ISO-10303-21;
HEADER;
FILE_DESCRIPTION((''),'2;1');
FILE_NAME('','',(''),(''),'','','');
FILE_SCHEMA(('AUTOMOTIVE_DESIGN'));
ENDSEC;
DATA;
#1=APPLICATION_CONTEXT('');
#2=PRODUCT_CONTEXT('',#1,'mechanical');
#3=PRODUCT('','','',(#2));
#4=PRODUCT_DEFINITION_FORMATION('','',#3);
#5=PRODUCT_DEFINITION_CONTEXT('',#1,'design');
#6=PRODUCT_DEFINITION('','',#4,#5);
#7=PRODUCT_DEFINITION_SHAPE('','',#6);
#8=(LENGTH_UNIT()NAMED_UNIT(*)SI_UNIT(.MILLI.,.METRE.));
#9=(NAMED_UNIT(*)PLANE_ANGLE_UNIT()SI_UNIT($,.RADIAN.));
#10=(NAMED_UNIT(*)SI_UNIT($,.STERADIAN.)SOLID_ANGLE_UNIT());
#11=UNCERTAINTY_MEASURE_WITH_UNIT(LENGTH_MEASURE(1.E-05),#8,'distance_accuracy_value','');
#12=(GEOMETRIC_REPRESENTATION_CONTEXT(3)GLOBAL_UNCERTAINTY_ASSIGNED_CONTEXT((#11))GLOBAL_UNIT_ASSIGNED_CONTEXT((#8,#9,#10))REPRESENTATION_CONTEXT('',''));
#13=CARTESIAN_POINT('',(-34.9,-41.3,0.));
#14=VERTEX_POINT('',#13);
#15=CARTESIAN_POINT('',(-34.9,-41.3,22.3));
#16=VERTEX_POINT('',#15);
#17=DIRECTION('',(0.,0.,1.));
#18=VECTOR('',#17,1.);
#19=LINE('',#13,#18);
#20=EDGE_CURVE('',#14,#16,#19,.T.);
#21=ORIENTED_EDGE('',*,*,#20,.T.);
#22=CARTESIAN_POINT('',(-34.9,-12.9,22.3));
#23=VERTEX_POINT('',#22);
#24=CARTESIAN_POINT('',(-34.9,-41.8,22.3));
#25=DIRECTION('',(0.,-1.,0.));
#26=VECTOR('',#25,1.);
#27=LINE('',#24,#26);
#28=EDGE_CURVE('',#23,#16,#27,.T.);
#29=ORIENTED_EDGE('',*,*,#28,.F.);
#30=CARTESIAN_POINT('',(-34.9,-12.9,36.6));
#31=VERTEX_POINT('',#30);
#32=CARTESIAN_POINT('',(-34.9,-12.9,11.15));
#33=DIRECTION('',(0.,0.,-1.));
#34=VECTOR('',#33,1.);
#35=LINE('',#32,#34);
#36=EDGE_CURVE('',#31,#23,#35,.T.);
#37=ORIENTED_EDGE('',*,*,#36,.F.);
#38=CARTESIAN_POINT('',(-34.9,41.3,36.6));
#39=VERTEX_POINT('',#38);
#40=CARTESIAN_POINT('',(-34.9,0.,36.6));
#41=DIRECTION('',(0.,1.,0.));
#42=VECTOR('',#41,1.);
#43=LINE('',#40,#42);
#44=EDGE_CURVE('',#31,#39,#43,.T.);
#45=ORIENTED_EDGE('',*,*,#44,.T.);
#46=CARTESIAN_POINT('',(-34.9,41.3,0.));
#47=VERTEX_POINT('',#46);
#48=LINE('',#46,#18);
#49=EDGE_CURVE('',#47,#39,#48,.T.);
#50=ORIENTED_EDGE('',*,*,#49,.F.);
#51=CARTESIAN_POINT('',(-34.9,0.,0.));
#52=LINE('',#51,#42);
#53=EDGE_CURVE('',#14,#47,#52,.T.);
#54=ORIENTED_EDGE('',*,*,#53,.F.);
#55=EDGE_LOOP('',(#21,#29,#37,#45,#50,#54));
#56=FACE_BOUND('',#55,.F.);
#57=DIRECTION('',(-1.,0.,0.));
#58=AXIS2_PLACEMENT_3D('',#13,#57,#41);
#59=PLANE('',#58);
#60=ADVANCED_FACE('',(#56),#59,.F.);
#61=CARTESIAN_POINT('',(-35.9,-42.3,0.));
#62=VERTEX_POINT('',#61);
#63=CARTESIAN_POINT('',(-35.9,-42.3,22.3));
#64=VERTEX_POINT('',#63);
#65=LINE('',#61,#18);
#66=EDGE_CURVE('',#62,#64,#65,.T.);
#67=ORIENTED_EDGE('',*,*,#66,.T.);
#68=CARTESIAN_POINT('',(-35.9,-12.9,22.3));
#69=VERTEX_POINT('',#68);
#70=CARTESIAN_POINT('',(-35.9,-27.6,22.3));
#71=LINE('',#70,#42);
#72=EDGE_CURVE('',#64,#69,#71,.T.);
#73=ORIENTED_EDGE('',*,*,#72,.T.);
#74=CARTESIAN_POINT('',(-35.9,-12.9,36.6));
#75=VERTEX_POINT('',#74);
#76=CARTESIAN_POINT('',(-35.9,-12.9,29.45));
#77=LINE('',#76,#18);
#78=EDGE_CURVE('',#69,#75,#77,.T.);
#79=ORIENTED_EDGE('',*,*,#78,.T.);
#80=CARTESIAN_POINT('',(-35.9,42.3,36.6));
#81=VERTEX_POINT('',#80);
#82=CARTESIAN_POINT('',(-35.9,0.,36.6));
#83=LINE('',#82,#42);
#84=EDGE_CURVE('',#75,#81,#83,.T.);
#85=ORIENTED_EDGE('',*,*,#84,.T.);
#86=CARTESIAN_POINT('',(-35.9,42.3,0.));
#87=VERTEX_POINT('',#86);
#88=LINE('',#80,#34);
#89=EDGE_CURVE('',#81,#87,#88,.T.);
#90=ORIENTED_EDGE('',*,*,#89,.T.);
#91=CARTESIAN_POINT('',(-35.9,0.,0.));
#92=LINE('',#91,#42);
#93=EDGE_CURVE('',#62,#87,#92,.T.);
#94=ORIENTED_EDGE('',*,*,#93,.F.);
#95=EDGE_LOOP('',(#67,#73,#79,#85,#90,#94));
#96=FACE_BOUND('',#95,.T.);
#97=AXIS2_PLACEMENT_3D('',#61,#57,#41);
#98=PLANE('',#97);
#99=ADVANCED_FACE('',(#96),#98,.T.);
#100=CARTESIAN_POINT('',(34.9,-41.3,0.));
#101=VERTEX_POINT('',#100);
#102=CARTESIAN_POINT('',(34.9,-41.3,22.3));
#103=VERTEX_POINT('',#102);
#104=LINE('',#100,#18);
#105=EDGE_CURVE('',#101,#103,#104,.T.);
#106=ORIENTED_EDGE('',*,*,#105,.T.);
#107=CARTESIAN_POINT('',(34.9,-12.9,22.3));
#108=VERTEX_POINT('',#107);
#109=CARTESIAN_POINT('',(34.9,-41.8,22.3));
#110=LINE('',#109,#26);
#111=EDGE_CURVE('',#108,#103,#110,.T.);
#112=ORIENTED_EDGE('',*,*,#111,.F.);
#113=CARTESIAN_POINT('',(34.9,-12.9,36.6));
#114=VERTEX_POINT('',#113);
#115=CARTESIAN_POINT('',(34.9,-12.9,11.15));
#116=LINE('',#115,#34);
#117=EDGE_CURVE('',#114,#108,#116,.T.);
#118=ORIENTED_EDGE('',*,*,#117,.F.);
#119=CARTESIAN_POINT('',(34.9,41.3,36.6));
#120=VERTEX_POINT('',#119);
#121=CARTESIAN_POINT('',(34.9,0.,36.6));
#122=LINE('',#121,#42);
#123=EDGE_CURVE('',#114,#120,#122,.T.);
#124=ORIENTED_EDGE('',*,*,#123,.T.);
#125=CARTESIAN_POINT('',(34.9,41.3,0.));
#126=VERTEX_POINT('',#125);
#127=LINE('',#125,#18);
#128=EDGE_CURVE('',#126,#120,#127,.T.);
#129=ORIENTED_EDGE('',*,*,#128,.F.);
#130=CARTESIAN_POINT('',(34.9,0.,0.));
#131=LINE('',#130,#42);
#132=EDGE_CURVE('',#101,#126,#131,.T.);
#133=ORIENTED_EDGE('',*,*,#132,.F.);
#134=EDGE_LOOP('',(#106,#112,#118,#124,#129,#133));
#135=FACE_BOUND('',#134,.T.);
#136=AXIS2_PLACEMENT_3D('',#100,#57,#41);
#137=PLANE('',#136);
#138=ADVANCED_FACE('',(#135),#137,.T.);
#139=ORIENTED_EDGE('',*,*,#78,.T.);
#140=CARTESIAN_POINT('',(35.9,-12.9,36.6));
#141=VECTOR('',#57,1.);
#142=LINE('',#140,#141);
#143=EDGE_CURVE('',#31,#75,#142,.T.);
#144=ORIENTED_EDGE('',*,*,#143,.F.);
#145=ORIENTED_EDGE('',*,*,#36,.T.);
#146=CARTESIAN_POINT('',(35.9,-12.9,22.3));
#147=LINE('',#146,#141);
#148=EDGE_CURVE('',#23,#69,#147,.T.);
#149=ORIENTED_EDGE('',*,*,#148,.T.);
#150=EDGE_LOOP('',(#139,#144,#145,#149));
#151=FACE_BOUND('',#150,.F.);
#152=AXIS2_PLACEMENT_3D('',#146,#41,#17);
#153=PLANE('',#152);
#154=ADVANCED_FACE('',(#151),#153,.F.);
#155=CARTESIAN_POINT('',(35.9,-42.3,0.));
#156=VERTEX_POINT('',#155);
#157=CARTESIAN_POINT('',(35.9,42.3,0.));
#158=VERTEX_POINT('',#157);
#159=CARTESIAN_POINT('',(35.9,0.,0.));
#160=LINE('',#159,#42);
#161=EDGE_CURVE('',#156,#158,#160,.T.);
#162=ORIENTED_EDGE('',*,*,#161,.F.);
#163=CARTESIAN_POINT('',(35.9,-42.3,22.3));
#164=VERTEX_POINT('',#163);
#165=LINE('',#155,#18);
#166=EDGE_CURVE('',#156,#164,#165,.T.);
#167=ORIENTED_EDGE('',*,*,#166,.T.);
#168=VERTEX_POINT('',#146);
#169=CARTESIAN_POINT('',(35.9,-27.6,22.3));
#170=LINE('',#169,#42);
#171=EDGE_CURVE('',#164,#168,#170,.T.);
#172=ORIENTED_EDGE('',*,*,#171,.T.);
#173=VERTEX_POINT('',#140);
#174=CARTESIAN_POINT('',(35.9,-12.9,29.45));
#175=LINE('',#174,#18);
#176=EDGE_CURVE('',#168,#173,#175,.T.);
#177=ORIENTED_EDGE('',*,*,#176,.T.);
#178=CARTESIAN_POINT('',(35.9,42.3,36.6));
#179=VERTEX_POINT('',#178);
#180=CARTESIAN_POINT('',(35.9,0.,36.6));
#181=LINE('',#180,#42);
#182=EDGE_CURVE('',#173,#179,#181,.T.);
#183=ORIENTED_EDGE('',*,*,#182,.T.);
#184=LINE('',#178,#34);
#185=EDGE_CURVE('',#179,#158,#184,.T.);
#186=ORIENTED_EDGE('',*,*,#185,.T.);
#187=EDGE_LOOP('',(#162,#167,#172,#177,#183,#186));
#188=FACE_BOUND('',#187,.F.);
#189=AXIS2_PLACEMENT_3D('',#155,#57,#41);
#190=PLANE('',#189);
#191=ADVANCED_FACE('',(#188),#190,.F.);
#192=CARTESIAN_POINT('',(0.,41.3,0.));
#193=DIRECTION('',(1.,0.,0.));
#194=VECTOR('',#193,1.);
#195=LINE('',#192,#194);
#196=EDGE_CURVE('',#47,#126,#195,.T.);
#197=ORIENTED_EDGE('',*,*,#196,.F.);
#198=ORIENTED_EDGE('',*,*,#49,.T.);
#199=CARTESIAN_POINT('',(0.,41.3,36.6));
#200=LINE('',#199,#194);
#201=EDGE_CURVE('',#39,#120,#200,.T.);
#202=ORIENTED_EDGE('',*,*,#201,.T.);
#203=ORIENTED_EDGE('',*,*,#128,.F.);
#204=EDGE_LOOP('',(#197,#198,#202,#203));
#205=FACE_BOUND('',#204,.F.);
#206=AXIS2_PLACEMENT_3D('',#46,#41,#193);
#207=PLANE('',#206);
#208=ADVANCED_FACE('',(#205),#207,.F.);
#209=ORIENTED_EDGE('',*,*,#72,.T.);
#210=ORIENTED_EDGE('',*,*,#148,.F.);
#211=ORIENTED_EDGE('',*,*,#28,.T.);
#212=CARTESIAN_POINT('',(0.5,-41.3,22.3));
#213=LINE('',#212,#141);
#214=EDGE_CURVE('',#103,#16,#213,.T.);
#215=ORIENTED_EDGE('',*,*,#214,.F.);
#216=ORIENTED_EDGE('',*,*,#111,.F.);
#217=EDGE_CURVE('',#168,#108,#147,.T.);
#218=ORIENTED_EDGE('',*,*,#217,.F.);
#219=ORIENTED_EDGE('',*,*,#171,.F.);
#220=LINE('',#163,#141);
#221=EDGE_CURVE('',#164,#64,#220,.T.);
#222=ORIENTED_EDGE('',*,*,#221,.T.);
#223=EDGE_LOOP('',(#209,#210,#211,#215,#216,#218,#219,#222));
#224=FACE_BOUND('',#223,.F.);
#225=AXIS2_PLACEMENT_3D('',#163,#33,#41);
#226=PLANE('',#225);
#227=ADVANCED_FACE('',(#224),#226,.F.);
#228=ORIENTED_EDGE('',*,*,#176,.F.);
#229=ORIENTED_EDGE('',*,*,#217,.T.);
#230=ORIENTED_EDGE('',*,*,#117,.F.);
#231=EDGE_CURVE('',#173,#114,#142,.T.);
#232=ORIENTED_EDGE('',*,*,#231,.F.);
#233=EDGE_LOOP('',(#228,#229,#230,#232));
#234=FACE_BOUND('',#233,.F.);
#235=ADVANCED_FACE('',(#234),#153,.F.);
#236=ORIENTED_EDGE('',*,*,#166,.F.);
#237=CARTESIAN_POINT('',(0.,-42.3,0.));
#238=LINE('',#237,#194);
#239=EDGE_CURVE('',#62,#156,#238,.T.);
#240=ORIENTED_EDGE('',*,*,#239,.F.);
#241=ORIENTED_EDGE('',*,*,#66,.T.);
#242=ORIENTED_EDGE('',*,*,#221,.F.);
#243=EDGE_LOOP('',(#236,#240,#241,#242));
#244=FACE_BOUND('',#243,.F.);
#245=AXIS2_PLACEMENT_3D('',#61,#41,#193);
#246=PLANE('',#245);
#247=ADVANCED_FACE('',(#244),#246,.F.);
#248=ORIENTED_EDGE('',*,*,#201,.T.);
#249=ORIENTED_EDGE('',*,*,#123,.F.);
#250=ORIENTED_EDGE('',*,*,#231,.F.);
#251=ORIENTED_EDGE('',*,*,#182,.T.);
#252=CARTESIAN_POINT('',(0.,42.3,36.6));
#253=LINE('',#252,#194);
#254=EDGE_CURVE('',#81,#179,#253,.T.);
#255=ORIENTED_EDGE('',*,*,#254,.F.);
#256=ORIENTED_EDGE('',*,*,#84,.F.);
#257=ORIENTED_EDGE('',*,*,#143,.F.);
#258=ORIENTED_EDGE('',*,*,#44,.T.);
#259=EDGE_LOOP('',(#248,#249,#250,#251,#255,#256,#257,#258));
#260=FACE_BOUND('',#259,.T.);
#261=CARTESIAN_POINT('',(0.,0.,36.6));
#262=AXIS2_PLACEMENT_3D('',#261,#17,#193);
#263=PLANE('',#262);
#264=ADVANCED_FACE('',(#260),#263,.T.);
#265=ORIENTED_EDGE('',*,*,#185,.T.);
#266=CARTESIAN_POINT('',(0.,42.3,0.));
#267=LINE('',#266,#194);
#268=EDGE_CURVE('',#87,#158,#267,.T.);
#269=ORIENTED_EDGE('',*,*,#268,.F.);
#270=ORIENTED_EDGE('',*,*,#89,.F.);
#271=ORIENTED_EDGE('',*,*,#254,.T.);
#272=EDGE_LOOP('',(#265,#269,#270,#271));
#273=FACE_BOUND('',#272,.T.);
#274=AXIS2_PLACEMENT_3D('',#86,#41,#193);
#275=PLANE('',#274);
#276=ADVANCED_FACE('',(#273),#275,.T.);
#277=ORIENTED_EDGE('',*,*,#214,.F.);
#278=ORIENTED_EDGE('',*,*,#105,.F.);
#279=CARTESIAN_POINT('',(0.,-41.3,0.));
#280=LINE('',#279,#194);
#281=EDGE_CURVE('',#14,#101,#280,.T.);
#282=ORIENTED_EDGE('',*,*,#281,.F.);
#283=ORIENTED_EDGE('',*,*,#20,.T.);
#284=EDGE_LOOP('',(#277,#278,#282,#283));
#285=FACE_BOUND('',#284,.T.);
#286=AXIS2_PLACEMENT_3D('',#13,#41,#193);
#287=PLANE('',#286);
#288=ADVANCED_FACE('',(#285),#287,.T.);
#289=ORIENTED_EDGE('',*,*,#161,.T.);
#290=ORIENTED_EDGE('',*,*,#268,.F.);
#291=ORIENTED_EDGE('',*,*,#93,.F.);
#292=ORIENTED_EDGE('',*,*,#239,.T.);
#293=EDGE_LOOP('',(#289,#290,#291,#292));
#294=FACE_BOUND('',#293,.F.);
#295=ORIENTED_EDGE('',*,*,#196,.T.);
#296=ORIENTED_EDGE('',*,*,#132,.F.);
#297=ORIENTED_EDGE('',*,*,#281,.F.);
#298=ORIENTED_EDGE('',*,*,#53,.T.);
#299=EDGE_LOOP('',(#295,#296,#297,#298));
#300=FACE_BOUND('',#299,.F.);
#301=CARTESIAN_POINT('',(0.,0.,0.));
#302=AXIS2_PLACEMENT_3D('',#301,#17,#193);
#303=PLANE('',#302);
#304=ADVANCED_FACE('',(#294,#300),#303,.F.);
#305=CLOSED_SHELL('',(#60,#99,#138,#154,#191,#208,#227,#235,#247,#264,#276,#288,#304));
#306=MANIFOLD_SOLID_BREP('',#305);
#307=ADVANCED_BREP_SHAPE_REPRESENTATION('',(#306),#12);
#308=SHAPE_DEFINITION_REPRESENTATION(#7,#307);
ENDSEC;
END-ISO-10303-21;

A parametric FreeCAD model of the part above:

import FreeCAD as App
import Part
import Sketcher

V = App.Vector


def add_polygon(sketch, points):
    """Adds a closed chain of lines whose ends are joined by coincident constraints."""
    first, n = sketch.GeometryCount, len(points)
    for a, b in zip(points, points[1:] + points[:1]):
        sketch.addGeometry(Part.LineSegment(App.Vector(*a, 0), App.Vector(*b, 0)), False)
    for i in range(n):
        sketch.addConstraint(Sketcher.Constraint("Coincident", first + i, 2, first + (i + 1) % n, 1))

doc = App.newDocument("Part")
body = doc.addObject("PartDesign::Body", "Body")

sketch1 = body.newObject("Sketcher::SketchObject", "Sketch")
sketch1.AttachmentSupport = (doc.getObject("XY_Plane"), [""])
sketch1.MapMode = "FlatFace"
add_polygon(sketch1, [(-36, 42), (-36, -42), (36, -42), (36, 42)])
sketch1.addConstraint([
    Sketcher.Constraint("Vertical", 0),
    Sketcher.Constraint("Horizontal", 1),
    Sketcher.Constraint("Vertical", 2),
    Sketcher.Constraint("Horizontal", 3),
    Sketcher.Constraint("Symmetric", 0, 2, 2, 2, -1, 1),
    Sketcher.Constraint("DistanceX", 1, 1, 1, 2, 71.8),
    Sketcher.Constraint("DistanceY", 0, 2, 0, 1, 84.6),
])
pad1 = body.newObject("PartDesign::Pad", "Pad")
pad1.Profile = sketch1
pad1.Length = 36.6

sketch2 = body.newObject("Sketcher::SketchObject", "Sketch001")
sketch2.AttachmentSupport = (doc.getObject("XY_Plane"), [""])
sketch2.MapMode = "FlatFace"
add_polygon(sketch2, [(-36, 42), (-36, -42), (36, -42), (36, 42)])
sketch2.addConstraint([
    Sketcher.Constraint("Vertical", 0),
    Sketcher.Constraint("Horizontal", 1),
    Sketcher.Constraint("Vertical", 2),
    Sketcher.Constraint("Horizontal", 3),
    Sketcher.Constraint("Symmetric", 0, 2, 2, 2, -1, 1),
    Sketcher.Constraint("DistanceX", 1, 1, 1, 2, 71.8),
    Sketcher.Constraint("DistanceY", 0, 2, 0, 1, 84.6),
])
pad2 = body.newObject("PartDesign::Pad", "Pad001")
pad2.Profile = sketch2
pad2.Length = 2

sketch3 = body.newObject("Sketcher::SketchObject", "Sketch002")
sketch3.AttachmentSupport = (doc.getObject("XY_Plane"), [""])
sketch3.MapMode = "FlatFace"
add_polygon(sketch3, [(-35, 41), (-35, -41), (35, -41), (35, 41)])
sketch3.addConstraint([
    Sketcher.Constraint("Vertical", 0),
    Sketcher.Constraint("Horizontal", 1),
    Sketcher.Constraint("Vertical", 2),
    Sketcher.Constraint("Horizontal", 3),
    Sketcher.Constraint("Symmetric", 0, 2, 2, 2, -1, 1),
    Sketcher.Constraint("DistanceX", 1, 1, 1, 2, 69.8),
    Sketcher.Constraint("DistanceY", 0, 2, 0, 1, 82.6),
])
pocket1 = body.newObject("PartDesign::Pocket", "Pocket")
pocket1.Profile = sketch3
pocket1.Length = 36.6
pocket1.Reversed = True

sketch4 = body.newObject("Sketcher::SketchObject", "Sketch003")
sketch4.AttachmentSupport = (doc.getObject("YZ_Plane"), [""])
sketch4.MapMode = "FlatFace"
sketch4.AttachmentOffset = App.Placement(V(0, 0, 35.9), App.Rotation())
add_polygon(sketch4, [(-42, 37), (-42, 22), (-13, 22), (-13, 37)])
sketch4.addConstraint([
    Sketcher.Constraint("Vertical", 0),
    Sketcher.Constraint("Horizontal", 1),
    Sketcher.Constraint("Vertical", 2),
    Sketcher.Constraint("Horizontal", 3),
    Sketcher.Constraint("DistanceX", 1, 1, 1, 2, 29.4),
    Sketcher.Constraint("DistanceY", 0, 2, 0, 1, 14.3),
    Sketcher.Constraint("DistanceX", 0, 2, -1, 1, 42.3),
    Sketcher.Constraint("DistanceY", -1, 1, 0, 2, 22.3),
])
pocket2 = body.newObject("PartDesign::Pocket", "Pocket001")
pocket2.Profile = sketch4
pocket2.Length = 71.8

doc.recompute()
